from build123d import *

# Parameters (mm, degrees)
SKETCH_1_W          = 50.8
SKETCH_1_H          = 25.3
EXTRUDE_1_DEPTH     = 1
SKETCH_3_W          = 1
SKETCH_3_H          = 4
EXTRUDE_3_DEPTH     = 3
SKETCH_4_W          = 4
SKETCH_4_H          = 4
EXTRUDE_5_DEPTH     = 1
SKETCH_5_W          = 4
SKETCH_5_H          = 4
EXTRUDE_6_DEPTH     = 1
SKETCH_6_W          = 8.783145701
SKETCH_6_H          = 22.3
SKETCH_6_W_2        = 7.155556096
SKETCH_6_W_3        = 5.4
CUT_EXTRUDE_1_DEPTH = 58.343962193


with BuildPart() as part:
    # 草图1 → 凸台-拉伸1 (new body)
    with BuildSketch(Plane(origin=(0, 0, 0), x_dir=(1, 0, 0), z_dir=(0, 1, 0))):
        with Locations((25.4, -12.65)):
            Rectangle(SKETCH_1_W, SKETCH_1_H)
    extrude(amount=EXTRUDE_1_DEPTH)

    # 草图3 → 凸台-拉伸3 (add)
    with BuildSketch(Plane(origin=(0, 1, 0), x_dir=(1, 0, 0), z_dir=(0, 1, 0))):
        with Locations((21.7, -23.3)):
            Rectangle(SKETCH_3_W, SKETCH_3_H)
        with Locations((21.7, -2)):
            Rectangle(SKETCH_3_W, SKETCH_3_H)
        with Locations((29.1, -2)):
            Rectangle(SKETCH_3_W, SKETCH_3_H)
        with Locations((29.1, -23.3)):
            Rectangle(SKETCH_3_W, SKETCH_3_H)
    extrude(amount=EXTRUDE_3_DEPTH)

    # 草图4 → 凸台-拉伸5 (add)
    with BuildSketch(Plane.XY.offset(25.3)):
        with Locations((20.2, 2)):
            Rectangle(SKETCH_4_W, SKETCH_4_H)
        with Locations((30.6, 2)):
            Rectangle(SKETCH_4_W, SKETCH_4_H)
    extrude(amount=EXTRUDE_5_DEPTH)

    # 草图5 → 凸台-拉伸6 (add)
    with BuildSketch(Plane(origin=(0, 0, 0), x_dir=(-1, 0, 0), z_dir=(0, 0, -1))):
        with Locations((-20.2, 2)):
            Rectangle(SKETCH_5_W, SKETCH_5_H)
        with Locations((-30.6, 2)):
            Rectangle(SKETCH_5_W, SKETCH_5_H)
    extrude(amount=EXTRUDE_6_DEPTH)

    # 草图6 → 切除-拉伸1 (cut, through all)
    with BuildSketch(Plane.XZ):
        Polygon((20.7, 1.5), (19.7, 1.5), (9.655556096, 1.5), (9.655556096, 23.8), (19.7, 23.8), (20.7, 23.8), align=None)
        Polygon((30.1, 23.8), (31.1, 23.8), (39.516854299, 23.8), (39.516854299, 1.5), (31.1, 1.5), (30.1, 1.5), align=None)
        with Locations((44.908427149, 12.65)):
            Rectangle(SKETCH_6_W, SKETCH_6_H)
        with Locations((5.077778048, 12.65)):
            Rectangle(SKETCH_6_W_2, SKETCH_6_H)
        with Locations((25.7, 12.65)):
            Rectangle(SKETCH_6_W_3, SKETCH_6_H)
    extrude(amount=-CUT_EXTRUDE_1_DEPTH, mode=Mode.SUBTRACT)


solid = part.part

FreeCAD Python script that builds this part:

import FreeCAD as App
import Part
import Sketcher
Q = App.Units.Quantity


def add_polygon(sketch, points):
    """Adds a closed chain of lines whose ends are joined by coincident constraints."""
    first, n = sketch.GeometryCount, len(points)
    for a, b in zip(points, points[1:] + points[:1]):
        sketch.addGeometry(Part.LineSegment(App.Vector(*a, 0), App.Vector(*b, 0)), False)
    for i in range(n):
        sketch.addConstraint(Sketcher.Constraint("Coincident", first + i, 2, first + (i + 1) % n, 1))

doc = App.newDocument("Part")
body = doc.addObject("PartDesign::Body", "Body")

# Sketch on XZ plane
sketch1 = doc.addObject("Sketcher::SketchObject", "Sketch")
body.addObject(sketch1)
sketch1.AttachmentSupport = (doc.XZ_Plane, [""])
sketch1.MapMode = "FlatFace"
add_polygon(sketch1, [(0, 0), (0, 25), (51, 25), (51, 0)])  # lines 0-3
sketch1.addConstraint([
    Sketcher.Constraint("Vertical", 0),
    Sketcher.Constraint("Horizontal", 1),
    Sketcher.Constraint("Vertical", 2),
    Sketcher.Constraint("Horizontal", 3),
    Sketcher.Constraint("Coincident", 3, 2, -1, 1),
    Sketcher.Constraint("DistanceX", 1, 1, 1, 2, Q("50.8 mm")),
    Sketcher.Constraint("DistanceY", 0, 1, 0, 2, Q("25.3 mm")),
])
pad1 = doc.addObject("PartDesign::Pad", "Pad")
body.addObject(pad1)
pad1.Profile = sketch1
pad1.Length = 1
pad1.Reversed = True

# Sketch on XZ plane
sketch2 = doc.addObject("Sketcher::SketchObject", "Sketch001")
body.addObject(sketch2)
sketch2.AttachmentSupport = (doc.XZ_Plane, [""])
sketch2.MapMode = "FlatFace"
sketch2.AttachmentOffset = App.Placement(App.Vector(0, 0, -1), App.Rotation())
add_polygon(sketch2, [(21.2, 21.3), (21.2, 25.3), (22.2, 25.3), (22.2, 21.3)])  # lines 0-3
add_polygon(sketch2, [(21.2, 0), (21.2, 4), (22.2, 4), (22.2, 0)])  # lines 4-7
add_polygon(sketch2, [(28.6, 0), (28.6, 4), (29.6, 4), (29.6, 0)])  # lines 8-11
add_polygon(sketch2, [(28.6, 21.3), (28.6, 25.3), (29.6, 25.3), (29.6, 21.3)])  # lines 12-15
sketch2.addConstraint([
    Sketcher.Constraint("Vertical", 0),
    Sketcher.Constraint("Horizontal", 1),
    Sketcher.Constraint("Vertical", 2),
    Sketcher.Constraint("Horizontal", 3),
    Sketcher.Constraint("Vertical", 4),
    Sketcher.Constraint("Horizontal", 5),
    Sketcher.Constraint("Vertical", 6),
    Sketcher.Constraint("Horizontal", 7),
    Sketcher.Constraint("Vertical", 8),
    Sketcher.Constraint("Horizontal", 9),
    Sketcher.Constraint("Vertical", 10),
    Sketcher.Constraint("Horizontal", 11),
    Sketcher.Constraint("Vertical", 12),
    Sketcher.Constraint("Horizontal", 13),
    Sketcher.Constraint("Vertical", 14),
    Sketcher.Constraint("Horizontal", 15),
    Sketcher.Constraint("PointOnObject", 6, 2, -1),
    Sketcher.Constraint("PointOnObject", 10, 2, -1),
    Sketcher.Constraint("Horizontal", 5, 2, 8, 2),
    Sketcher.Constraint("Horizontal", 1, 2, 12, 2),
    Sketcher.Constraint("Horizontal", 3, 2, 14, 2),
    Sketcher.Constraint("Vertical", 3, 2, 4, 2),
    Sketcher.Constraint("Vertical", 2, 2, 5, 2),
    Sketcher.Constraint("Vertical", 11, 2, 12, 2),
    Sketcher.Constraint("Vertical", 10, 2, 13, 2),
    Sketcher.Constraint("Equal", 7, 9),
    Sketcher.Constraint("Equal", 2, 4),
    Sketcher.Constraint("DistanceX", 1, 1, 1, 2, Q("1 mm")),
    Sketcher.Constraint("DistanceY", 0, 1, 0, 2, Q("4 mm")),
    Sketcher.Constraint("DistanceX", -1, 1, 0, 2, Q("21.2 mm")),
    Sketcher.Constraint("DistanceY", -1, 1, 0, 2, Q("25.3 mm")),
    Sketcher.Constraint("DistanceX", -1, 1, 8, 2, Q("28.6 mm")),
])
pad2 = doc.addObject("PartDesign::Pad", "Pad001")
body.addObject(pad2)
pad2.Profile = sketch2
pad2.Length = 3
pad2.Reversed = True

# Sketch on XY plane
sketch3 = doc.addObject("Sketcher::SketchObject", "Sketch002")
body.addObject(sketch3)
sketch3.AttachmentSupport = (doc.XY_Plane, [""])
sketch3.MapMode = "FlatFace"
sketch3.AttachmentOffset = App.Placement(App.Vector(0, 0, 25.3), App.Rotation())
add_polygon(sketch3, [(18.2, 4), (18.2, 0), (22.2, 0), (22.2, 4)])  # lines 0-3
add_polygon(sketch3, [(28.6, 4), (28.6, 0), (32.6, 0), (32.6, 4)])  # lines 4-7
sketch3.addConstraint([
    Sketcher.Constraint("Vertical", 0),
    Sketcher.Constraint("Horizontal", 1),
    Sketcher.Constraint("Vertical", 2),
    Sketcher.Constraint("Horizontal", 3),
    Sketcher.Constraint("Vertical", 4),
    Sketcher.Constraint("Horizontal", 5),
    Sketcher.Constraint("Vertical", 6),
    Sketcher.Constraint("Horizontal", 7),
    Sketcher.Constraint("PointOnObject", 0, 2, -1),
    Sketcher.Constraint("PointOnObject", 4, 2, -1),
    Sketcher.Constraint("Horizontal", 3, 2, 6, 2),
    Sketcher.Constraint("Equal", 3, 5),
    Sketcher.Constraint("Equal", 7, 0),
    Sketcher.Constraint("DistanceX", 1, 1, 1, 2, Q("4 mm")),
    Sketcher.Constraint("DistanceX", -1, 1, 0, 2, Q("18.2 mm")),
    Sketcher.Constraint("DistanceX", -1, 1, 4, 2, Q("28.6 mm")),
])
pad3 = doc.addObject("PartDesign::Pad", "Pad002")
body.addObject(pad3)
pad3.Profile = sketch3
pad3.Length = 1

# Sketch on XY plane
sketch4 = doc.addObject("Sketcher::SketchObject", "Sketch003")
body.addObject(sketch4)
sketch4.AttachmentSupport = (doc.XY_Plane, [""])
sketch4.MapMode = "FlatFace"
add_polygon(sketch4, [(22.2, 4), (22.2, 0), (18.2, 0), (18.2, 4)])  # lines 0-3
add_polygon(sketch4, [(32.6, 4), (32.6, 0), (28.6, 0), (28.6, 4)])  # lines 4-7
sketch4.addConstraint([
    Sketcher.Constraint("Vertical", 0),
    Sketcher.Constraint("Horizontal", 1),
    Sketcher.Constraint("Vertical", 2),
    Sketcher.Constraint("Horizontal", 3),
    Sketcher.Constraint("Vertical", 4),
    Sketcher.Constraint("Horizontal", 5),
    Sketcher.Constraint("Vertical", 6),
    Sketcher.Constraint("Horizontal", 7),
    Sketcher.Constraint("PointOnObject", 0, 2, -1),
    Sketcher.Constraint("PointOnObject", 4, 2, -1),
    Sketcher.Constraint("Horizontal", 3, 2, 6, 2),
    Sketcher.Constraint("Equal", 3, 5),
    Sketcher.Constraint("Equal", 7, 0),
    Sketcher.Constraint("DistanceX", 1, 2, 1, 1, Q("4 mm")),
    Sketcher.Constraint("DistanceX", -1, 1, 0, 2, Q("22.2 mm")),
    Sketcher.Constraint("DistanceX", -1, 1, 4, 2, Q("32.6 mm")),
])
pad4 = doc.addObject("PartDesign::Pad", "Pad003")
body.addObject(pad4)
pad4.Profile = sketch4
pad4.Length = 1
pad4.Reversed = True

# Sketch on XZ plane
sketch5 = doc.addObject("Sketcher::SketchObject", "Sketch004")
body.addObject(sketch5)
sketch5.AttachmentSupport = (doc.XZ_Plane, [""])
sketch5.MapMode = "FlatFace"
add_polygon(sketch5, [(10, 2), (21, 2), (21, 24), (10, 24)])  # lines 0-3
add_polygon(sketch5, [(40, 24), (30, 24), (30, 2), (40, 2)])  # lines 4-7
add_polygon(sketch5, [(41, 24), (41, 2), (49, 2), (49, 24)])  # lines 8-11
add_polygon(sketch5, [(2, 24), (2, 2), (9, 2), (9, 24)])  # lines 12-15
add_polygon(sketch5, [(23, 24), (23, 2), (28, 2), (28, 24)])  # lines 16-19
sketch5.addConstraint([
    Sketcher.Constraint("Horizontal", 0),
    Sketcher.Constraint("Vertical", 1),
    Sketcher.Constraint("Horizontal", 2),
    Sketcher.Constraint("Vertical", 3),
    Sketcher.Constraint("Horizontal", 4),
    Sketcher.Constraint("Vertical", 5),
    Sketcher.Constraint("Horizontal", 6),
    Sketcher.Constraint("Vertical", 7),
    Sketcher.Constraint("Vertical", 8),
    Sketcher.Constraint("Horizontal", 9),
    Sketcher.Constraint("Vertical", 10),
    Sketcher.Constraint("Horizontal", 11),
    Sketcher.Constraint("Vertical", 12),
    Sketcher.Constraint("Horizontal", 13),
    Sketcher.Constraint("Vertical", 14),
    Sketcher.Constraint("Horizontal", 15),
    Sketcher.Constraint("Vertical", 16),
    Sketcher.Constraint("Horizontal", 17),
    Sketcher.Constraint("Vertical", 18),
    Sketcher.Constraint("Horizontal", 19),
    Sketcher.Constraint("Horizontal", 2, 2, 4, 2),
    Sketcher.Constraint("Horizontal", 3, 2, 5, 2),
    Sketcher.Constraint("Horizontal", 6, 2, 8, 2),
    Sketcher.Constraint("Horizontal", 7, 2, 10, 2),
    Sketcher.Constraint("Horizontal", 9, 2, 12, 2),
    Sketcher.Constraint("Horizontal", 11, 2, 14, 2),
    Sketcher.Constraint("Horizontal", 13, 2, 16, 2),
    Sketcher.Constraint("Horizontal", 15, 2, 18, 2),
    Sketcher.Constraint("DistanceX", 17, 1, 17, 2, Q("5.4 mm")),
    Sketcher.Constraint("DistanceY", 1, 1, 1, 2, Q("22.3 mm")),
    Sketcher.Constraint("DistanceX", -1, 1, 16, 2, Q("23 mm")),
    Sketcher.Constraint("DistanceX", 6, 2, 8, 2, Q("1 mm")),
    Sketcher.Constraint("DistanceX", 13, 2, 3, 2, Q("1 mm")),
    Sketcher.Constraint("DistanceX", -1, 1, 0, 2, Q("20.7 mm")),
    Sketcher.Constraint("DistanceY", -1, 1, 0, 2, Q("1.5 mm")),
    Sketcher.Constraint("DistanceX", -1, 1, 4, 2, Q("30.1 mm")),
    Sketcher.Constraint("DistanceX", -1, 1, 9, 2, Q("49.3 mm")),
    Sketcher.Constraint("DistanceX", -1, 1, 12, 2, Q("1.5 mm")),
    Sketcher.Constraint("DistanceX", 3, 2, 6, 2, Q("29.861298 mm")),
    Sketcher.Constraint("DistanceX", 0, 1, 0, 2, Q("11.044444 mm")),
])
pocket1 = doc.addObject("PartDesign::Pocket", "Pocket")
body.addObject(pocket1)
pocket1.Profile = sketch5
pocket1.Type = "ThroughAll"

doc.recompute()
